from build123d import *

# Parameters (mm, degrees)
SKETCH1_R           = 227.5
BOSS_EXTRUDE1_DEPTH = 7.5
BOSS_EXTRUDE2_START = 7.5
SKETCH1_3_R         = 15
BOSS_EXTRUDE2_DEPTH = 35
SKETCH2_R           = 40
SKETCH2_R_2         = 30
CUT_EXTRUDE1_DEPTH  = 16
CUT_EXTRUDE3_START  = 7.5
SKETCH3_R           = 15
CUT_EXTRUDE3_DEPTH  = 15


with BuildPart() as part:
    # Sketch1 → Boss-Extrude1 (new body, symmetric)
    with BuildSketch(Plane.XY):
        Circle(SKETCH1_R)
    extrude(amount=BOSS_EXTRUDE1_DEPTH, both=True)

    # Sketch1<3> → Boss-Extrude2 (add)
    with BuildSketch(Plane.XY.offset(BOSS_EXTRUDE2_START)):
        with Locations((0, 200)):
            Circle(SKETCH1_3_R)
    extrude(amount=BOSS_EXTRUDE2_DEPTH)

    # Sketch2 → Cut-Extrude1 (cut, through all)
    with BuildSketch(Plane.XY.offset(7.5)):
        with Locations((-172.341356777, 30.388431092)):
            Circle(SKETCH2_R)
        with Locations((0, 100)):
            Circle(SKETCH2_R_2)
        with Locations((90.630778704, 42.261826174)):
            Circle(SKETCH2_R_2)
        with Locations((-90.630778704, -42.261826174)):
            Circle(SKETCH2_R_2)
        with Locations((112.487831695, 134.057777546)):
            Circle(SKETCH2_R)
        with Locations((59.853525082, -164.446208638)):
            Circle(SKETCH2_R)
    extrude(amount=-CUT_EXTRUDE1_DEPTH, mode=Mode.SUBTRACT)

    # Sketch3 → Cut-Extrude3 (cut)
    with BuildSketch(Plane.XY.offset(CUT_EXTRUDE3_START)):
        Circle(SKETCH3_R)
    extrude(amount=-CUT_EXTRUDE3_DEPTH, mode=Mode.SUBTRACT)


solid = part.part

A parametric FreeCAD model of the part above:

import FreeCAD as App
import Part
import Sketcher
Q = App.Units.Quantity

doc = App.newDocument("Part")
body = doc.addObject("PartDesign::Body", "Body")

# Sketch on XY plane
sketch1 = doc.addObject("Sketcher::SketchObject", "Sketch")
body.addObject(sketch1)
sketch1.AttachmentSupport = (doc.XY_Plane, [""])
sketch1.MapMode = "FlatFace"
sketch1.addGeometry(Part.Circle(App.Vector(0, 0, 0), App.Vector(0, 0, 1), 228), False)
sketch1.addConstraint([
    Sketcher.Constraint("Coincident", 0, 3, -1, 1),
    Sketcher.Constraint("Diameter", 0, Q("455 mm")),
])
pad1 = doc.addObject("PartDesign::Pad", "Pad")
body.addObject(pad1)
pad1.Profile = sketch1
pad1.Length = 15
pad1.Midplane = True

# Sketch on XY plane
sketch2 = doc.addObject("Sketcher::SketchObject", "Sketch001")
body.addObject(sketch2)
sketch2.AttachmentSupport = (doc.XY_Plane, [""])
sketch2.MapMode = "FlatFace"
sketch2.AttachmentOffset = App.Placement(App.Vector(0, 0, 7.5), App.Rotation())
sketch2.addGeometry(Part.Circle(App.Vector(0, 200, 0), App.Vector(0, 0, 1), 15), False)
sketch2.addConstraint([
    Sketcher.Constraint("PointOnObject", 0, 3, -2),
    Sketcher.Constraint("Diameter", 0, Q("30 mm")),
    Sketcher.Constraint("DistanceY", -1, 1, 0, 3, Q("200 mm")),
])
pad2 = doc.addObject("PartDesign::Pad", "Pad001")
body.addObject(pad2)
pad2.Profile = sketch2
pad2.Length = 35

# Sketch on XY plane
sketch3 = doc.addObject("Sketcher::SketchObject", "Sketch002")
body.addObject(sketch3)
sketch3.AttachmentSupport = (doc.XY_Plane, [""])
sketch3.MapMode = "FlatFace"
sketch3.AttachmentOffset = App.Placement(App.Vector(0, 0, 7.5), App.Rotation())
sketch3.addGeometry([
    Part.Circle(App.Vector(-172, 30, 0), App.Vector(0, 0, 1), 40),  # 0
    Part.Circle(App.Vector(0, 100, 0), App.Vector(0, 0, 1), 30),  # 1
    Part.Circle(App.Vector(91, 42, 0), App.Vector(0, 0, 1), 30),  # 2
    Part.Circle(App.Vector(-91, -42, 0), App.Vector(0, 0, 1), 30),  # 3
    Part.Circle(App.Vector(112, 134, 0), App.Vector(0, 0, 1), 40),  # 4
    Part.Circle(App.Vector(60, -164, 0), App.Vector(0, 0, 1), 40),  # 5
], False)
sketch3.addConstraint([
    Sketcher.Constraint("Equal", 1, 2),
    Sketcher.Constraint("Equal", 2, 3),
    Sketcher.Constraint("Equal", 0, 4),
    Sketcher.Constraint("Equal", 4, 5),
    Sketcher.Constraint("Symmetric", 2, 3, 3, 3, -1, 1),
    Sketcher.Constraint("PointOnObject", 1, 3, -2),
    Sketcher.Constraint("Diameter", 0, Q("80 mm")),
    Sketcher.Constraint("Diameter", 1, Q("60 mm")),
    Sketcher.Constraint("DistanceY", -1, 1, 1, 3, Q("100 mm")),
    Sketcher.Constraint("DistanceY", -1, 1, 0, 3, Q("30.388431 mm")),
    Sketcher.Constraint("DistanceX", -1, 1, 2, 3, Q("90.630779 mm")),
    Sketcher.Constraint("DistanceX", -1, 1, 4, 3, Q("112.487832 mm")),
    Sketcher.Constraint("DistanceY", 5, 3, -1, 1, Q("164.446209 mm")),
    Sketcher.Constraint("DistanceX", 0, 3, 3, 3, Q("81.710578 mm")),
    Sketcher.Constraint("DistanceY", 2, 3, 4, 3, Q("91.795951 mm")),
    Sketcher.Constraint("DistanceX", 0, 3, 5, 3, Q("232.194882 mm")),
    Sketcher.Constraint("DistanceY", -1, 1, 2, 3, Q("42.261826 mm")),
])
pocket1 = doc.addObject("PartDesign::Pocket", "Pocket")
body.addObject(pocket1)
pocket1.Profile = sketch3
pocket1.Type = "ThroughAll"

# Sketch on XY plane
sketch4 = doc.addObject("Sketcher::SketchObject", "Sketch003")
body.addObject(sketch4)
sketch4.AttachmentSupport = (doc.XY_Plane, [""])
sketch4.MapMode = "FlatFace"
sketch4.AttachmentOffset = App.Placement(App.Vector(0, 0, 7.5), App.Rotation())
sketch4.addGeometry(Part.Circle(App.Vector(0, 0, 0), App.Vector(0, 0, 1), 15), False)
sketch4.addConstraint([
    Sketcher.Constraint("Coincident", 0, 3, -1, 1),
    Sketcher.Constraint("Diameter", 0, Q("30 mm")),
])
pocket2 = doc.addObject("PartDesign::Pocket", "Pocket001")
body.addObject(pocket2)
pocket2.Profile = sketch4
pocket2.Length = 15

doc.recompute()
